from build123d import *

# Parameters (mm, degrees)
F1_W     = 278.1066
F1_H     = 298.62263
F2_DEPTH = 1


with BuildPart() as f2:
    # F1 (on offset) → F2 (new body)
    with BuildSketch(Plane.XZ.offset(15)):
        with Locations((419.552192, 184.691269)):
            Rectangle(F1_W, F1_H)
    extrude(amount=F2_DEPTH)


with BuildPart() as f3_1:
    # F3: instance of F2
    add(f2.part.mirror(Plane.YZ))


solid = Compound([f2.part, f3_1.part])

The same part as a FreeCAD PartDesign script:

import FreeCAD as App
import Part
import Sketcher
from FreeCAD import Vector

doc = App.newDocument("Part")
body = doc.addObject("PartDesign::Body", "Body")

# Sketch on XZ plane
sketch1 = body.newObject("Sketcher::SketchObject", "Sketch")
sketch1.AttachmentSupport = (doc.getObject("XZ_Plane"), [""])
sketch1.MapMode = "FlatFace"
sketch1.AttachmentOffset = App.Placement(Vector(0, 0, 15), App.Rotation())
sketch1.addGeometry([
    Part.LineSegment(Vector(280, 334, 0), Vector(280, 35, 0)),
    Part.LineSegment(Vector(280, 35, 0), Vector(559, 35, 0)),
    Part.LineSegment(Vector(559, 35, 0), Vector(559, 334, 0)),
    Part.LineSegment(Vector(559, 334, 0), Vector(280, 334, 0)),
], False)
sketch1.addConstraint([
    Sketcher.Constraint("Coincident", 0, 2, 1, 1),
    Sketcher.Constraint("Coincident", 1, 2, 2, 1),
    Sketcher.Constraint("Coincident", 2, 2, 3, 1),
    Sketcher.Constraint("Coincident", 3, 2, 0, 1),
    Sketcher.Constraint("Vertical", 0),
    Sketcher.Constraint("Horizontal", 1),
    Sketcher.Constraint("Vertical", 2),
    Sketcher.Constraint("Horizontal", 3),
    Sketcher.Constraint("DistanceX", 1, 1, 1, 2, 278.1066),
    Sketcher.Constraint("DistanceY", 0, 2, 0, 1, 298.62263),
    Sketcher.Constraint("DistanceX", -1, 1, 0, 2, 280.498892),
    Sketcher.Constraint("DistanceY", -1, 1, 0, 2, 35.379954),
])
pad1 = body.newObject("PartDesign::Pad", "Pad")
pad1.Profile = sketch1
pad1.Length = 1
body2 = doc.addObject("PartDesign::Body", "Body001")
doc.recompute()

mirroring = doc.addObject("Part::Mirroring", "Mirroring")
mirroring.Source = body
mirroring.Base = Vector(0, 0, 0)
mirroring.Normal = Vector(1, 0, 0)
body2.BaseFeature = mirroring
doc.recompute()
mirroring.Visibility = False

doc.recompute()
